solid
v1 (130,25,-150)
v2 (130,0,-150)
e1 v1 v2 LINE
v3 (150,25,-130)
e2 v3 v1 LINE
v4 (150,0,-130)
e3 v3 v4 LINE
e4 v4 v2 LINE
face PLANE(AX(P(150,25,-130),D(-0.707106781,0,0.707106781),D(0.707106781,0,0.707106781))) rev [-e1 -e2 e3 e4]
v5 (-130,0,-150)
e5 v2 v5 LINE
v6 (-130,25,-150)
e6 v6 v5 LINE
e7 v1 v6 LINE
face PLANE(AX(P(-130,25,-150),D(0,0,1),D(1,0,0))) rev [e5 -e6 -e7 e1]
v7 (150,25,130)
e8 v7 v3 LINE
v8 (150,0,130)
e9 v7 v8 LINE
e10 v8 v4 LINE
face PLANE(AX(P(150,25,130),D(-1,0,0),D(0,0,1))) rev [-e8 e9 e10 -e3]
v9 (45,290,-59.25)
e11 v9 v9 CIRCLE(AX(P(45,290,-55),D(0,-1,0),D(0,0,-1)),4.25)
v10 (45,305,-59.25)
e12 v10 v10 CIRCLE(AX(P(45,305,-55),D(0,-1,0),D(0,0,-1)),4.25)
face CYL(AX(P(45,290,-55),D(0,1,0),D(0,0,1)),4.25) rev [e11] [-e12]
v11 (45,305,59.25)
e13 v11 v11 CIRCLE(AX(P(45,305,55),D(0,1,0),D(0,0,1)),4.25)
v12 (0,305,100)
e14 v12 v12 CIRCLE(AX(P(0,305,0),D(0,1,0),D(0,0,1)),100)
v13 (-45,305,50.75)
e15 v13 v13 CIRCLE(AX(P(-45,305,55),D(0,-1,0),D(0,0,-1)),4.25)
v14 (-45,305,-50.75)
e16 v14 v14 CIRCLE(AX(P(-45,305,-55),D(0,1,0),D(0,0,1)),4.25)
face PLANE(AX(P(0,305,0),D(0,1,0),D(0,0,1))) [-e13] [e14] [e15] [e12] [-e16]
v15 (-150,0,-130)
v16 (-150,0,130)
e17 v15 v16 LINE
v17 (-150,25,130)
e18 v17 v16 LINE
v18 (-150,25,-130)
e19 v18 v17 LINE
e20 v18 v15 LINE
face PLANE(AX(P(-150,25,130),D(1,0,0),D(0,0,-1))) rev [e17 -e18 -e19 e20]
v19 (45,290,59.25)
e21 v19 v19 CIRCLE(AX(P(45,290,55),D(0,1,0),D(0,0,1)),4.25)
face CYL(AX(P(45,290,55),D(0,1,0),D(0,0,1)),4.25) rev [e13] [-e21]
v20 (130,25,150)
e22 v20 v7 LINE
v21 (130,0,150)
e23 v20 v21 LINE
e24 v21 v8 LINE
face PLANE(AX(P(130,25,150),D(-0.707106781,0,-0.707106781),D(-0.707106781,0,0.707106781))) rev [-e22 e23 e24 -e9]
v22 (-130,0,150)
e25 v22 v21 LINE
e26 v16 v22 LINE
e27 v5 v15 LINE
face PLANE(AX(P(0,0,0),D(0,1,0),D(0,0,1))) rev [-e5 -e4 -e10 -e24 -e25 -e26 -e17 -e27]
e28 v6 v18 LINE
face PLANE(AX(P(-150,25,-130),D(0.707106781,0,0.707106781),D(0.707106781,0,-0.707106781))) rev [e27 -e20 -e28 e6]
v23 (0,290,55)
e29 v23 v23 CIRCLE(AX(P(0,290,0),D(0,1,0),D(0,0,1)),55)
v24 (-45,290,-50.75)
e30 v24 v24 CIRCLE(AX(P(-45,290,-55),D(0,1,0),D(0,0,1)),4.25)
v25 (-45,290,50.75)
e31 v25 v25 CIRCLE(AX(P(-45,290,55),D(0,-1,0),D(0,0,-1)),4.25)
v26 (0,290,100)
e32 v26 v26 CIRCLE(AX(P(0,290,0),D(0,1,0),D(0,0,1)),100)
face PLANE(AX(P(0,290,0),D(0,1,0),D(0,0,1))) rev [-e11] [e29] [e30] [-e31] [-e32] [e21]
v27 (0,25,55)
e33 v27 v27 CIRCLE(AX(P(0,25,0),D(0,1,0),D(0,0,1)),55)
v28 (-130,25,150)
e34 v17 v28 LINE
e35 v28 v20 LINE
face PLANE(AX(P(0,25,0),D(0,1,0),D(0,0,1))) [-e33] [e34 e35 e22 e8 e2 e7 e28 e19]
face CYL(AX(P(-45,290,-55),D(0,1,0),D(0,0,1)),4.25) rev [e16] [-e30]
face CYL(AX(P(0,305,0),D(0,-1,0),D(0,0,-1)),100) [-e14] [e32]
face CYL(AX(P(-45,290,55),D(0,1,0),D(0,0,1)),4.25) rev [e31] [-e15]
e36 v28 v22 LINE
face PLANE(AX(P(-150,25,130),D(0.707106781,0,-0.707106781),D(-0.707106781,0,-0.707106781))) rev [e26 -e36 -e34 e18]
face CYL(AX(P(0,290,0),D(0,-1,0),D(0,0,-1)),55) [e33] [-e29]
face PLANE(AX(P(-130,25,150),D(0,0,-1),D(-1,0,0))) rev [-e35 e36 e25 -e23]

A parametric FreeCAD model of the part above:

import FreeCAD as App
import Part
import Sketcher
from FreeCAD import Vector

doc = App.newDocument("Part")
body = doc.addObject("PartDesign::Body", "Body")

# Sketch on XZ plane
sketch1 = body.newObject("Sketcher::SketchObject", "Sketch")
sketch1.AttachmentSupport = (doc.getObject("XZ_Plane"), [""])
sketch1.MapMode = "FlatFace"
sketch1.addGeometry(Part.LineSegment(Vector(-130, -150, 0), Vector(-150, -130, 0)), False)
sketch1.addGeometry(Part.LineSegment(Vector(-150, -130, 0), Vector(-150, 130, 0)), False)
sketch1.addGeometry(Part.LineSegment(Vector(-150, 130, 0), Vector(-130, 150, 0)), False)
sketch1.addGeometry(Part.LineSegment(Vector(-130, 150, 0), Vector(130, 150, 0)), False)
sketch1.addGeometry(Part.LineSegment(Vector(130, 150, 0), Vector(150, 130, 0)), False)
sketch1.addGeometry(Part.LineSegment(Vector(150, 130, 0), Vector(150, -130, 0)), False)
sketch1.addGeometry(Part.LineSegment(Vector(150, -130, 0), Vector(130, -150, 0)), False)
sketch1.addGeometry(Part.LineSegment(Vector(130, -150, 0), Vector(-130, -150, 0)), False)
sketch1.addConstraint(Sketcher.Constraint("Coincident", 0, 2, 1, 1))
sketch1.addConstraint(Sketcher.Constraint("Coincident", 1, 2, 2, 1))
sketch1.addConstraint(Sketcher.Constraint("Coincident", 2, 2, 3, 1))
sketch1.addConstraint(Sketcher.Constraint("Coincident", 3, 2, 4, 1))
sketch1.addConstraint(Sketcher.Constraint("Coincident", 4, 2, 5, 1))
sketch1.addConstraint(Sketcher.Constraint("Coincident", 5, 2, 6, 1))
sketch1.addConstraint(Sketcher.Constraint("Coincident", 6, 2, 7, 1))
sketch1.addConstraint(Sketcher.Constraint("Coincident", 7, 2, 0, 1))
sketch1.addConstraint(Sketcher.Constraint("Vertical", 1))
sketch1.addConstraint(Sketcher.Constraint("Horizontal", 3))
sketch1.addConstraint(Sketcher.Constraint("Vertical", 5))
sketch1.addConstraint(Sketcher.Constraint("Horizontal", 7))
sketch1.addConstraint(Sketcher.Constraint("Symmetric", 0, 2, 4, 2, -1, 1))
sketch1.addConstraint(Sketcher.Constraint("Symmetric", 2, 2, 6, 2, -1, 1))
sketch1.addConstraint(Sketcher.Constraint("Perpendicular", 0, 2))
sketch1.addConstraint(Sketcher.Constraint("Perpendicular", 2, 4))
sketch1.addConstraint(Sketcher.Constraint("Perpendicular", 4, 6))
sketch1.addConstraint(Sketcher.Constraint("Horizontal", 1, 2, 4, 2))
sketch1.addConstraint(Sketcher.Constraint("Vertical", 3, 2, 6, 2))
sketch1.addConstraint(Sketcher.Constraint("Equal", 7, 1))
sketch1.addConstraint(Sketcher.Constraint("DistanceX", 3, 1, 3, 2, 260.0))
sketch1.addConstraint(Sketcher.Constraint("DistanceX", 0, 2, -1, 1, 150.0))
pad1 = body.newObject("PartDesign::Pad", "Pad")
pad1.Profile = sketch1
pad1.Length = 25
pad1.Reversed = True

# Sketch on XZ plane
sketch2 = body.newObject("Sketcher::SketchObject", "Sketch001")
sketch2.AttachmentSupport = (doc.getObject("XZ_Plane"), [""])
sketch2.MapMode = "FlatFace"
sketch2.AttachmentOffset = App.Placement(Vector(0, 0, -25), App.Rotation())
sketch2.addGeometry(Part.Circle(Vector(0, 0, 0), Vector(0, 0, 1), 55), False)
sketch2.addConstraint(Sketcher.Constraint("Coincident", 0, 3, -1, 1))
sketch2.addConstraint(Sketcher.Constraint("Diameter", 0, 110.0))
pad2 = body.newObject("PartDesign::Pad", "Pad001")
pad2.Profile = sketch2
pad2.Length = 265
pad2.Reversed = True

# Sketch on XZ plane
sketch3 = body.newObject("Sketcher::SketchObject", "Sketch002")
sketch3.AttachmentSupport = (doc.getObject("XZ_Plane"), [""])
sketch3.MapMode = "FlatFace"
sketch3.AttachmentOffset = App.Placement(Vector(0, 0, -290), App.Rotation())
sketch3.addGeometry(Part.Circle(Vector(0, 0, 0), Vector(0, 0, 1), 100), False)
sketch3.addConstraint(Sketcher.Constraint("Coincident", 0, 3, -1, 1))
sketch3.addConstraint(Sketcher.Constraint("Diameter", 0, 200.0))
pad3 = body.newObject("PartDesign::Pad", "Pad002")
pad3.Profile = sketch3
pad3.Length = 15
pad3.Reversed = True

# Sketch on XZ plane
sketch4 = body.newObject("Sketcher::SketchObject", "Sketch003")
sketch4.AttachmentSupport = (doc.getObject("XZ_Plane"), [""])
sketch4.MapMode = "FlatFace"
sketch4.AttachmentOffset = App.Placement(Vector(0, 0, -305), App.Rotation())
sketch4.addGeometry(Part.Circle(Vector(-45, -55, 0), Vector(0, 0, 1), 4.25), False)
sketch4.addGeometry(Part.Circle(Vector(45, -55, 0), Vector(0, 0, 1), 4.25), False)
sketch4.addGeometry(Part.Circle(Vector(45, 55, 0), Vector(0, 0, 1), 4.25), False)
sketch4.addGeometry(Part.Circle(Vector(-45, 55, 0), Vector(0, 0, 1), 4.25), False)
sketch4.addConstraint(Sketcher.Constraint("Equal", 0, 1))
sketch4.addConstraint(Sketcher.Constraint("Equal", 1, 2))
sketch4.addConstraint(Sketcher.Constraint("Equal", 2, 3))
sketch4.addConstraint(Sketcher.Constraint("Symmetric", 0, 3, 2, 3, -1, 1))
sketch4.addConstraint(Sketcher.Constraint("Symmetric", 1, 3, 3, 3, -1, 1))
sketch4.addConstraint(Sketcher.Constraint("Symmetric", 0, 3, 1, 3, -2))
sketch4.addConstraint(Sketcher.Constraint("Diameter", 0, 8.5))
sketch4.addConstraint(Sketcher.Constraint("DistanceX", 0, 3, -1, 1, 45.0))
sketch4.addConstraint(Sketcher.Constraint("DistanceY", 0, 3, -1, 1, 55.0))
pocket1 = body.newObject("PartDesign::Pocket", "Pocket")
pocket1.Profile = sketch4
pocket1.Length = 15
pocket1.Reversed = True

doc.recompute()
